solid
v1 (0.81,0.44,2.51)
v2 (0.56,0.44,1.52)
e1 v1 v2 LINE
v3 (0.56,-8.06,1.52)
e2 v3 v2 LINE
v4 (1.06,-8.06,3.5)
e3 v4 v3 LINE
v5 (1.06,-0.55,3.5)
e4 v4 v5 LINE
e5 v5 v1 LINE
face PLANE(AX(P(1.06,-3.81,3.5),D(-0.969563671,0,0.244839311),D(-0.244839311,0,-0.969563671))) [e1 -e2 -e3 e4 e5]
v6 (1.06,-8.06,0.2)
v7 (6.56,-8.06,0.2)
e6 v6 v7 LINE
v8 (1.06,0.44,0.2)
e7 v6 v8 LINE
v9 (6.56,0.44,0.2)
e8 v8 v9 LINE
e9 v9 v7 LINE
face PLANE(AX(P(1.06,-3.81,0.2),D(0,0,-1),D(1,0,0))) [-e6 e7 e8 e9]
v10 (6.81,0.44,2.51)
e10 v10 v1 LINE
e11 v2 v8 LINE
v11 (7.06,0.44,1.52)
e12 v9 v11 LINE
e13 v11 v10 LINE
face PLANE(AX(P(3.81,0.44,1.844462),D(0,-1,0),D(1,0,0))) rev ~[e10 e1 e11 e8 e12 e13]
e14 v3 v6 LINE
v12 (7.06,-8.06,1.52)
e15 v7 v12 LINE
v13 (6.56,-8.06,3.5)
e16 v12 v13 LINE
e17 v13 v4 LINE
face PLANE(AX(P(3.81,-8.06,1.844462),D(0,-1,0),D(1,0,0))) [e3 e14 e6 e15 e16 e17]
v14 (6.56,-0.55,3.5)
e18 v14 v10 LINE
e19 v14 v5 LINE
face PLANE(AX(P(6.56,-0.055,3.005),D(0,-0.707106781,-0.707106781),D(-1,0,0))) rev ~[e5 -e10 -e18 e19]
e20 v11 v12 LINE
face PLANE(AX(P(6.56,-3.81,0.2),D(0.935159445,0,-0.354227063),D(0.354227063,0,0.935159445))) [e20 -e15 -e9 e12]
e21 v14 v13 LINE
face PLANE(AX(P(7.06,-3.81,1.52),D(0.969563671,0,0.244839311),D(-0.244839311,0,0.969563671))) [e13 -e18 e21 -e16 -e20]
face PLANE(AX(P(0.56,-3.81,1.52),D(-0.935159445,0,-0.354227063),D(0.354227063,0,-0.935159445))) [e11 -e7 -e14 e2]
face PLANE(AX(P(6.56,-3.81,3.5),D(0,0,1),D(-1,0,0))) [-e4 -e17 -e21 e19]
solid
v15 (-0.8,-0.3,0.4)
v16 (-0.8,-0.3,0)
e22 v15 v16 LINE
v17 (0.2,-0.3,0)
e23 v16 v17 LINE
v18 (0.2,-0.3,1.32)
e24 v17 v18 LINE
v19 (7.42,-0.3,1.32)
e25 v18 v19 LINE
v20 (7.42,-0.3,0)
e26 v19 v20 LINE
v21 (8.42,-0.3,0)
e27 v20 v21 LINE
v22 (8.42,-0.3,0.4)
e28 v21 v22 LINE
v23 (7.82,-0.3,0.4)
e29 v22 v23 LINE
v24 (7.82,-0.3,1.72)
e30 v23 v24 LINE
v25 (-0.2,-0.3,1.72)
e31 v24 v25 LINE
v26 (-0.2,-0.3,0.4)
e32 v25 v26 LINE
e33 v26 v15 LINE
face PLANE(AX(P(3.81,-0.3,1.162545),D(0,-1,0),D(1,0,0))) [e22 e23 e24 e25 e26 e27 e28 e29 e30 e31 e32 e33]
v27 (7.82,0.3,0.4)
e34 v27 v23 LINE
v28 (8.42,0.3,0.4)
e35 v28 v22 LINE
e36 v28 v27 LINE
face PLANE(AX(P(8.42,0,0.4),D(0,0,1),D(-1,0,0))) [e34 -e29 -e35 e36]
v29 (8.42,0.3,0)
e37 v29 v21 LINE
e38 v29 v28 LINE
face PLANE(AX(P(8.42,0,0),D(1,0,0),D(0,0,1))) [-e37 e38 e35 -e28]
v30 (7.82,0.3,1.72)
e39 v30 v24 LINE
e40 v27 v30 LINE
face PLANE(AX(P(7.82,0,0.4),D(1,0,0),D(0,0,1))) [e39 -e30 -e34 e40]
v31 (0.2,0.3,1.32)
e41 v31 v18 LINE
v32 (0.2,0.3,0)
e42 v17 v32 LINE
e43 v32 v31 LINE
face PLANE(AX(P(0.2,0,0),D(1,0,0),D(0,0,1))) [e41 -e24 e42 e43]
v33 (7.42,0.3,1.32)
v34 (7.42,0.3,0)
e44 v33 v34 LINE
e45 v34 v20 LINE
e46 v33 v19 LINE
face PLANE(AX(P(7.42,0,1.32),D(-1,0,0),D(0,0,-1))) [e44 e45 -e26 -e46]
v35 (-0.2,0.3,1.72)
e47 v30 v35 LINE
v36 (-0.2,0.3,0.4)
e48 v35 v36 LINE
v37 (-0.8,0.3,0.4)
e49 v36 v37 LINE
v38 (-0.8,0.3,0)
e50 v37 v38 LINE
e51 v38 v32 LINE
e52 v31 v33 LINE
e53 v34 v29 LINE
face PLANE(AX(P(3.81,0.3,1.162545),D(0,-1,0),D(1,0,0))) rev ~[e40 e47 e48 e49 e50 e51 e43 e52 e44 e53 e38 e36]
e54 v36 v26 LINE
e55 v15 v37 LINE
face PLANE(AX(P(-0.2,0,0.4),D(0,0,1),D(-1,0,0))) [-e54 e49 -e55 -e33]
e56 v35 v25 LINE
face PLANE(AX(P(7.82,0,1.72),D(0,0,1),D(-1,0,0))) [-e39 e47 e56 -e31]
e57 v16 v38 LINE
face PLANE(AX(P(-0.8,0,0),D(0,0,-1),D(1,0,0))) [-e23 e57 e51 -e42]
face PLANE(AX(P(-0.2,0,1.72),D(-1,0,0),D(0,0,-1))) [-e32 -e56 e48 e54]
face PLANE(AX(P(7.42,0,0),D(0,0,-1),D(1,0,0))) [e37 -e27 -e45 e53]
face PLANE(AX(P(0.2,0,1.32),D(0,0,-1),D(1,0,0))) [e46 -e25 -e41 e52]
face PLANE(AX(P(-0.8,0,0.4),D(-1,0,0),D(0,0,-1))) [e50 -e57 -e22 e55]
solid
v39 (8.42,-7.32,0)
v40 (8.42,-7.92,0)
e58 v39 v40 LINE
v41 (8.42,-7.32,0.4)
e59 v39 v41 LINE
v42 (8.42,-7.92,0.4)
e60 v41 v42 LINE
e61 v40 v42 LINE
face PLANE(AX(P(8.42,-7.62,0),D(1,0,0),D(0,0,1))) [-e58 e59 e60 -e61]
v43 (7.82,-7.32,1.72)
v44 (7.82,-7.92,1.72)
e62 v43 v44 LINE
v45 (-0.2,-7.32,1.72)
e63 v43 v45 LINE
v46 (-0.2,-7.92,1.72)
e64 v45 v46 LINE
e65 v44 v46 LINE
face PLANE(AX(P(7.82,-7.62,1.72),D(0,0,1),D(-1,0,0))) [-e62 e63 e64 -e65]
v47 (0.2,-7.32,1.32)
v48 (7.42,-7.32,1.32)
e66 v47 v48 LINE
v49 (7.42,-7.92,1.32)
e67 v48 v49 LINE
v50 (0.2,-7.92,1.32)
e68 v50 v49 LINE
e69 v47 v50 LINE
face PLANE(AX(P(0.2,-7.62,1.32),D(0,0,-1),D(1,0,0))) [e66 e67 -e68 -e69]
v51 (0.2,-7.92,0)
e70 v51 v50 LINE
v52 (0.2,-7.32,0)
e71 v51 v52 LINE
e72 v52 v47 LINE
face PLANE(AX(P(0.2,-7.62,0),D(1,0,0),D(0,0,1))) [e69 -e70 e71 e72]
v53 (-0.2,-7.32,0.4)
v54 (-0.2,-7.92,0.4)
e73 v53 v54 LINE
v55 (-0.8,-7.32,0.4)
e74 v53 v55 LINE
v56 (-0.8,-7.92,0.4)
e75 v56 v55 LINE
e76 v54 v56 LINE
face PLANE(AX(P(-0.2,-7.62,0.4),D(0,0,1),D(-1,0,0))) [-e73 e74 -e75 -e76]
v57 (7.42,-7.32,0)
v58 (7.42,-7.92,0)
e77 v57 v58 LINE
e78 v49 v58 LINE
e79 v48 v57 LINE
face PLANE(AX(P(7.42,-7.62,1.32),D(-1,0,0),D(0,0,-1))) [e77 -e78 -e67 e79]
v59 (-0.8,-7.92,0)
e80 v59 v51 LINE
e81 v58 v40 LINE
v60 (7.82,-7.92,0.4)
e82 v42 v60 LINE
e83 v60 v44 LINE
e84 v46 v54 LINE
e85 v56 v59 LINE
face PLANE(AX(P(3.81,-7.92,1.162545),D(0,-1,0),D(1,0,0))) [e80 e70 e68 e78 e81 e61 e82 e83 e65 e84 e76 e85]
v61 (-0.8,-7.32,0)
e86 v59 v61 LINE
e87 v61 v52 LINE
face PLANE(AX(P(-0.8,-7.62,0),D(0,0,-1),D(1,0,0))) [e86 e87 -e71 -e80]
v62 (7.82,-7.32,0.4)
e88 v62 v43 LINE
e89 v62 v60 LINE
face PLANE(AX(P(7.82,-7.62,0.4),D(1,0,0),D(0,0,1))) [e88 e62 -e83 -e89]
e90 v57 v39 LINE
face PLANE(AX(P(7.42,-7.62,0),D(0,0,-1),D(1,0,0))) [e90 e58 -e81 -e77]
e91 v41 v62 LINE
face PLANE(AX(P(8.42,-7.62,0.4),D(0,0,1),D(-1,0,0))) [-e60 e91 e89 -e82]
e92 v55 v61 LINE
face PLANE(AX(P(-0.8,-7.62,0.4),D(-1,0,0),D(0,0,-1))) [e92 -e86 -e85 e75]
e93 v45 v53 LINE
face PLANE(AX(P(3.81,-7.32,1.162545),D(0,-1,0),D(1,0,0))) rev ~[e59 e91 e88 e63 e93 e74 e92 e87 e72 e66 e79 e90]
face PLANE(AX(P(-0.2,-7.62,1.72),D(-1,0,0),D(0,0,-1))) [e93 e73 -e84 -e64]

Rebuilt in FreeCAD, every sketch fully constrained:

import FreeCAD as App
import Part
import Sketcher
from FreeCAD import Vector


def edges_at(feature, points):
    """Names of the edges that pass closest to the given points."""
    edges = feature.Shape.Edges
    near = lambda p: min(range(len(edges)), key=lambda i: edges[i].distToShape(Part.Vertex(*p))[0])
    return sorted({f"Edge{near(p) + 1}" for p in points})


def add_polygon(sketch, points):
    """Adds a closed chain of lines whose ends are joined by coincident constraints."""
    first, n = sketch.GeometryCount, len(points)
    for a, b in zip(points, points[1:] + points[:1]):
        sketch.addGeometry(Part.LineSegment(App.Vector(*a, 0), App.Vector(*b, 0)), False)
    for i in range(n):
        sketch.addConstraint(Sketcher.Constraint("Coincident", first + i, 2, first + (i + 1) % n, 1))

doc = App.newDocument("Part")
body = doc.addObject("PartDesign::Body", "Body")

# Sketch on XZ plane
sketch1 = body.newObject("Sketcher::SketchObject", "Sketch")
sketch1.AttachmentSupport = (doc.getObject("XZ_Plane"), [""])
sketch1.MapMode = "FlatFace"
add_polygon(sketch1, [(0.2, 0), (0.2, 1.32), (7.42, 1.32), (7.42, 0), (8.42, 0), (8.42, 0.4), (7.82, 0.4), (7.82, 1.72), (-0.2, 1.72), (-0.2, 0.4), (-0.8, 0.4), (-0.8, 0)])  # lines 0-11
sketch1.addConstraint(Sketcher.Constraint("Vertical", 0))
sketch1.addConstraint(Sketcher.Constraint("Horizontal", 1))
sketch1.addConstraint(Sketcher.Constraint("Vertical", 2))
sketch1.addConstraint(Sketcher.Constraint("Horizontal", 3))
sketch1.addConstraint(Sketcher.Constraint("Vertical", 4))
sketch1.addConstraint(Sketcher.Constraint("Horizontal", 5))
sketch1.addConstraint(Sketcher.Constraint("Vertical", 6))
sketch1.addConstraint(Sketcher.Constraint("Horizontal", 7))
sketch1.addConstraint(Sketcher.Constraint("Vertical", 8))
sketch1.addConstraint(Sketcher.Constraint("Horizontal", 9))
sketch1.addConstraint(Sketcher.Constraint("Vertical", 10))
sketch1.addConstraint(Sketcher.Constraint("Horizontal", 11))
sketch1.addConstraint(Sketcher.Constraint("PointOnObject", 2, 2, -1))
sketch1.addConstraint(Sketcher.Constraint("PointOnObject", 10, 2, -1))
sketch1.addConstraint(Sketcher.Constraint("Horizontal", 5, 2, 8, 2))
sketch1.addConstraint(Sketcher.Constraint("Equal", 5, 9))
sketch1.addConstraint(Sketcher.Constraint("Equal", 3, 11))
sketch1.addConstraint(Sketcher.Constraint("Equal", 2, 6))
sketch1.addConstraint(Sketcher.Constraint("DistanceX", 3, 1, 3, 2, 1.0))
sketch1.addConstraint(Sketcher.Constraint("DistanceX", 5, 2, 5, 1, 0.6))
sketch1.addConstraint(Sketcher.Constraint("DistanceY", 4, 1, 4, 2, 0.4))
sketch1.addConstraint(Sketcher.Constraint("DistanceX", 1, 1, 1, 2, 7.22))
sketch1.addConstraint(Sketcher.Constraint("DistanceY", 0, 1, 0, 2, 1.32))
sketch1.addConstraint(Sketcher.Constraint("DistanceX", -1, 1, 0, 2, 0.2))
pad1 = body.newObject("PartDesign::Pad", "Pad")
pad1.Profile = sketch1
pad1.Length = 0.6
pad1.Midplane = True
body2 = doc.addObject("PartDesign::Body", "Body001")

# Sketch on XZ plane
sketch2 = body2.newObject("Sketcher::SketchObject", "Sketch001")
sketch2.AttachmentSupport = (doc.getObject("XZ_Plane001"), [""])
sketch2.MapMode = "FlatFace"
sketch2.AttachmentOffset = App.Placement(Vector(0, 0, 3.81), App.Rotation())
add_polygon(sketch2, [(1.1, 0.2), (6.6, 0.2), (7.1, 1.5), (6.6, 3.5), (1.1, 3.5), (0.6, 1.5)])  # lines 0-5
sketch2.addConstraint(Sketcher.Constraint("Horizontal", 0))
sketch2.addConstraint(Sketcher.Constraint("Horizontal", 3))
sketch2.addConstraint(Sketcher.Constraint("Horizontal", 1, 2, 4, 2))
sketch2.addConstraint(Sketcher.Constraint("Vertical", 0, 2, 2, 2))
sketch2.addConstraint(Sketcher.Constraint("Vertical", 3, 2, 5, 2))
sketch2.addConstraint(Sketcher.Constraint("Equal", 2, 4))
sketch2.addConstraint(Sketcher.Constraint("DistanceX", 0, 1, 0, 2, 5.5))
sketch2.addConstraint(Sketcher.Constraint("DistanceX", 3, 2, 1, 2, 6.0))
sketch2.addConstraint(Sketcher.Constraint("DistanceY", -1, 1, 0, 2, 0.2))
sketch2.addConstraint(Sketcher.Constraint("DistanceY", -1, 1, 2, 2, 3.5))
sketch2.addConstraint(Sketcher.Constraint("DistanceX", -1, 1, 0, 2, 6.56))
sketch2.addConstraint(Sketcher.Constraint("DistanceY", -1, 1, 1, 2, 1.52))
pad2 = body2.newObject("PartDesign::Pad", "Pad001")
pad2.Profile = sketch2
pad2.Length = 8.5
pad2.Midplane = True
doc.recompute()

chamfer = body2.newObject("PartDesign::Chamfer", "Chamfer")
chamfer.Base = (pad2, edges_at(pad2, [(3.81, 0.44, 3.5)]))
chamfer.Size = 0.99
body3 = doc.addObject("PartDesign::Body", "Body002")

# Sketch on XZ plane
sketch3 = body3.newObject("Sketcher::SketchObject", "Sketch002")
sketch3.AttachmentSupport = (doc.getObject("XZ_Plane002"), [""])
sketch3.MapMode = "FlatFace"
sketch3.AttachmentOffset = App.Placement(Vector(0, 0, 7.62), App.Rotation())
add_polygon(sketch3, [(0.2, 0), (0.2, 1.32), (7.42, 1.32), (7.42, 0), (8.42, 0), (8.42, 0.4), (7.82, 0.4), (7.82, 1.72), (-0.2, 1.72), (-0.2, 0.4), (-0.8, 0.4), (-0.8, 0)])  # lines 0-11
sketch3.addConstraint(Sketcher.Constraint("Vertical", 0))
sketch3.addConstraint(Sketcher.Constraint("Horizontal", 1))
sketch3.addConstraint(Sketcher.Constraint("Vertical", 2))
sketch3.addConstraint(Sketcher.Constraint("Horizontal", 3))
sketch3.addConstraint(Sketcher.Constraint("Vertical", 4))
sketch3.addConstraint(Sketcher.Constraint("Horizontal", 5))
sketch3.addConstraint(Sketcher.Constraint("Vertical", 6))
sketch3.addConstraint(Sketcher.Constraint("Horizontal", 7))
sketch3.addConstraint(Sketcher.Constraint("Vertical", 8))
sketch3.addConstraint(Sketcher.Constraint("Horizontal", 9))
sketch3.addConstraint(Sketcher.Constraint("Vertical", 10))
sketch3.addConstraint(Sketcher.Constraint("Horizontal", 11))
sketch3.addConstraint(Sketcher.Constraint("PointOnObject", 2, 2, -1))
sketch3.addConstraint(Sketcher.Constraint("PointOnObject", 10, 2, -1))
sketch3.addConstraint(Sketcher.Constraint("Horizontal", 5, 2, 8, 2))
sketch3.addConstraint(Sketcher.Constraint("Equal", 5, 9))
sketch3.addConstraint(Sketcher.Constraint("Equal", 3, 11))
sketch3.addConstraint(Sketcher.Constraint("Equal", 2, 6))
sketch3.addConstraint(Sketcher.Constraint("DistanceX", 3, 1, 3, 2, 1.0))
sketch3.addConstraint(Sketcher.Constraint("DistanceX", 5, 2, 5, 1, 0.6))
sketch3.addConstraint(Sketcher.Constraint("DistanceY", 4, 1, 4, 2, 0.4))
sketch3.addConstraint(Sketcher.Constraint("DistanceX", 1, 1, 1, 2, 7.22))
sketch3.addConstraint(Sketcher.Constraint("DistanceY", 0, 1, 0, 2, 1.32))
sketch3.addConstraint(Sketcher.Constraint("DistanceX", -1, 1, 0, 2, 0.2))
pad3 = body3.newObject("PartDesign::Pad", "Pad002")
pad3.Profile = sketch3
pad3.Length = 0.6
pad3.Midplane = True

doc.recompute()
